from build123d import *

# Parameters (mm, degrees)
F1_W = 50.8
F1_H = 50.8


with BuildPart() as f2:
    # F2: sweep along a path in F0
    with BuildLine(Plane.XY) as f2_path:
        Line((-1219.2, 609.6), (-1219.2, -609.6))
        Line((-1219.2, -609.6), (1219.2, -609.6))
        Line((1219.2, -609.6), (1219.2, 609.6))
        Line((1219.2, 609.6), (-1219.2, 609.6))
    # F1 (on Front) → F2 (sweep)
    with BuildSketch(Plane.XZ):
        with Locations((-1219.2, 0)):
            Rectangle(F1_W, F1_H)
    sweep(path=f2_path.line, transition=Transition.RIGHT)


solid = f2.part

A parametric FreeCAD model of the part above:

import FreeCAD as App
import Part
import Sketcher
from FreeCAD import Vector
Q = App.Units.Quantity

doc = App.newDocument("Part")
params = doc.addObject("Spreadsheet::Sheet", "Params")
for row, (alias, value) in enumerate([
    ("sketch1_width", "2 in"),
    ("sketch2_width", "96 in"),
    ("sketch2_height", "48 in"),
], start=1):
    params.set(f"A{row}", alias)
    params.set(f"B{row}", "=" + value)
    params.setAlias(f"B{row}", alias)

body = doc.addObject("PartDesign::Body", "Body")

# Sketch on XZ plane
sketch1 = doc.addObject("Sketcher::SketchObject", "Sketch")
body.addObject(sketch1)
sketch1.AttachmentSupport = (doc.XZ_Plane, [""])
sketch1.MapMode = "FlatFace"
sketch1.addGeometry([
    Part.LineSegment(Vector(-1245, 25, 0), Vector(-1245, -25, 0)),
    Part.LineSegment(Vector(-1245, -25, 0), Vector(-1194, -25, 0)),
    Part.LineSegment(Vector(-1194, -25, 0), Vector(-1194, 25, 0)),
    Part.LineSegment(Vector(-1194, 25, 0), Vector(-1245, 25, 0)),
], False)
sketch1.addConstraint([
    Sketcher.Constraint("Coincident", 0, 2, 1, 1),
    Sketcher.Constraint("Coincident", 1, 2, 2, 1),
    Sketcher.Constraint("Coincident", 2, 2, 3, 1),
    Sketcher.Constraint("Coincident", 3, 2, 0, 1),
    Sketcher.Constraint("Vertical", 0),
    Sketcher.Constraint("Horizontal", 1),
    Sketcher.Constraint("Vertical", 2),
    Sketcher.Constraint("Horizontal", 3),
    Sketcher.Constraint("Equal", 3, 0),
    Sketcher.Constraint("DistanceX", 1, 1, 1, 2, Q("2 in")),
    Sketcher.Constraint("DistanceX", 0, 2, -1, 1, Q("49 in")),
    Sketcher.Constraint("DistanceY", 0, 2, -1, 1, Q("1 in")),
])
sketch1.setExpression("Constraints[9]", "Params.sketch1_width")

# Sketch on XY plane
sketch2 = doc.addObject("Sketcher::SketchObject", "Sketch001")
body.addObject(sketch2)
sketch2.AttachmentSupport = (doc.XY_Plane, [""])
sketch2.MapMode = "FlatFace"
sketch2.addGeometry([
    Part.LineSegment(Vector(-1219, 610, 0), Vector(-1219, -610, 0)),
    Part.LineSegment(Vector(-1219, -610, 0), Vector(1219, -610, 0)),
    Part.LineSegment(Vector(1219, -610, 0), Vector(1219, 610, 0)),
    Part.LineSegment(Vector(1219, 610, 0), Vector(-1219, 610, 0)),
], False)
sketch2.addConstraint([
    Sketcher.Constraint("Coincident", 0, 2, 1, 1),
    Sketcher.Constraint("Coincident", 1, 2, 2, 1),
    Sketcher.Constraint("Coincident", 2, 2, 3, 1),
    Sketcher.Constraint("Coincident", 3, 2, 0, 1),
    Sketcher.Constraint("Vertical", 0),
    Sketcher.Constraint("Horizontal", 1),
    Sketcher.Constraint("Vertical", 2),
    Sketcher.Constraint("Horizontal", 3),
    Sketcher.Constraint("Symmetric", 0, 2, 2, 2, -1, 1),
    Sketcher.Constraint("DistanceX", 1, 1, 1, 2, Q("96 in")),
    Sketcher.Constraint("DistanceY", 0, 2, 0, 1, Q("48 in")),
])
sketch2.setExpression("Constraints[9]", "Params.sketch2_width")
sketch2.setExpression("Constraints[10]", "Params.sketch2_height")
doc.recompute()

additivepipe = doc.addObject("PartDesign::AdditivePipe", "AdditivePipe")
body.addObject(additivepipe)
additivepipe.Profile = sketch1
additivepipe.Spine = (sketch2, ["Edge1", "Edge2", "Edge3", "Edge4"])
additivepipe.Transition = "Right corner"

doc.recompute()
